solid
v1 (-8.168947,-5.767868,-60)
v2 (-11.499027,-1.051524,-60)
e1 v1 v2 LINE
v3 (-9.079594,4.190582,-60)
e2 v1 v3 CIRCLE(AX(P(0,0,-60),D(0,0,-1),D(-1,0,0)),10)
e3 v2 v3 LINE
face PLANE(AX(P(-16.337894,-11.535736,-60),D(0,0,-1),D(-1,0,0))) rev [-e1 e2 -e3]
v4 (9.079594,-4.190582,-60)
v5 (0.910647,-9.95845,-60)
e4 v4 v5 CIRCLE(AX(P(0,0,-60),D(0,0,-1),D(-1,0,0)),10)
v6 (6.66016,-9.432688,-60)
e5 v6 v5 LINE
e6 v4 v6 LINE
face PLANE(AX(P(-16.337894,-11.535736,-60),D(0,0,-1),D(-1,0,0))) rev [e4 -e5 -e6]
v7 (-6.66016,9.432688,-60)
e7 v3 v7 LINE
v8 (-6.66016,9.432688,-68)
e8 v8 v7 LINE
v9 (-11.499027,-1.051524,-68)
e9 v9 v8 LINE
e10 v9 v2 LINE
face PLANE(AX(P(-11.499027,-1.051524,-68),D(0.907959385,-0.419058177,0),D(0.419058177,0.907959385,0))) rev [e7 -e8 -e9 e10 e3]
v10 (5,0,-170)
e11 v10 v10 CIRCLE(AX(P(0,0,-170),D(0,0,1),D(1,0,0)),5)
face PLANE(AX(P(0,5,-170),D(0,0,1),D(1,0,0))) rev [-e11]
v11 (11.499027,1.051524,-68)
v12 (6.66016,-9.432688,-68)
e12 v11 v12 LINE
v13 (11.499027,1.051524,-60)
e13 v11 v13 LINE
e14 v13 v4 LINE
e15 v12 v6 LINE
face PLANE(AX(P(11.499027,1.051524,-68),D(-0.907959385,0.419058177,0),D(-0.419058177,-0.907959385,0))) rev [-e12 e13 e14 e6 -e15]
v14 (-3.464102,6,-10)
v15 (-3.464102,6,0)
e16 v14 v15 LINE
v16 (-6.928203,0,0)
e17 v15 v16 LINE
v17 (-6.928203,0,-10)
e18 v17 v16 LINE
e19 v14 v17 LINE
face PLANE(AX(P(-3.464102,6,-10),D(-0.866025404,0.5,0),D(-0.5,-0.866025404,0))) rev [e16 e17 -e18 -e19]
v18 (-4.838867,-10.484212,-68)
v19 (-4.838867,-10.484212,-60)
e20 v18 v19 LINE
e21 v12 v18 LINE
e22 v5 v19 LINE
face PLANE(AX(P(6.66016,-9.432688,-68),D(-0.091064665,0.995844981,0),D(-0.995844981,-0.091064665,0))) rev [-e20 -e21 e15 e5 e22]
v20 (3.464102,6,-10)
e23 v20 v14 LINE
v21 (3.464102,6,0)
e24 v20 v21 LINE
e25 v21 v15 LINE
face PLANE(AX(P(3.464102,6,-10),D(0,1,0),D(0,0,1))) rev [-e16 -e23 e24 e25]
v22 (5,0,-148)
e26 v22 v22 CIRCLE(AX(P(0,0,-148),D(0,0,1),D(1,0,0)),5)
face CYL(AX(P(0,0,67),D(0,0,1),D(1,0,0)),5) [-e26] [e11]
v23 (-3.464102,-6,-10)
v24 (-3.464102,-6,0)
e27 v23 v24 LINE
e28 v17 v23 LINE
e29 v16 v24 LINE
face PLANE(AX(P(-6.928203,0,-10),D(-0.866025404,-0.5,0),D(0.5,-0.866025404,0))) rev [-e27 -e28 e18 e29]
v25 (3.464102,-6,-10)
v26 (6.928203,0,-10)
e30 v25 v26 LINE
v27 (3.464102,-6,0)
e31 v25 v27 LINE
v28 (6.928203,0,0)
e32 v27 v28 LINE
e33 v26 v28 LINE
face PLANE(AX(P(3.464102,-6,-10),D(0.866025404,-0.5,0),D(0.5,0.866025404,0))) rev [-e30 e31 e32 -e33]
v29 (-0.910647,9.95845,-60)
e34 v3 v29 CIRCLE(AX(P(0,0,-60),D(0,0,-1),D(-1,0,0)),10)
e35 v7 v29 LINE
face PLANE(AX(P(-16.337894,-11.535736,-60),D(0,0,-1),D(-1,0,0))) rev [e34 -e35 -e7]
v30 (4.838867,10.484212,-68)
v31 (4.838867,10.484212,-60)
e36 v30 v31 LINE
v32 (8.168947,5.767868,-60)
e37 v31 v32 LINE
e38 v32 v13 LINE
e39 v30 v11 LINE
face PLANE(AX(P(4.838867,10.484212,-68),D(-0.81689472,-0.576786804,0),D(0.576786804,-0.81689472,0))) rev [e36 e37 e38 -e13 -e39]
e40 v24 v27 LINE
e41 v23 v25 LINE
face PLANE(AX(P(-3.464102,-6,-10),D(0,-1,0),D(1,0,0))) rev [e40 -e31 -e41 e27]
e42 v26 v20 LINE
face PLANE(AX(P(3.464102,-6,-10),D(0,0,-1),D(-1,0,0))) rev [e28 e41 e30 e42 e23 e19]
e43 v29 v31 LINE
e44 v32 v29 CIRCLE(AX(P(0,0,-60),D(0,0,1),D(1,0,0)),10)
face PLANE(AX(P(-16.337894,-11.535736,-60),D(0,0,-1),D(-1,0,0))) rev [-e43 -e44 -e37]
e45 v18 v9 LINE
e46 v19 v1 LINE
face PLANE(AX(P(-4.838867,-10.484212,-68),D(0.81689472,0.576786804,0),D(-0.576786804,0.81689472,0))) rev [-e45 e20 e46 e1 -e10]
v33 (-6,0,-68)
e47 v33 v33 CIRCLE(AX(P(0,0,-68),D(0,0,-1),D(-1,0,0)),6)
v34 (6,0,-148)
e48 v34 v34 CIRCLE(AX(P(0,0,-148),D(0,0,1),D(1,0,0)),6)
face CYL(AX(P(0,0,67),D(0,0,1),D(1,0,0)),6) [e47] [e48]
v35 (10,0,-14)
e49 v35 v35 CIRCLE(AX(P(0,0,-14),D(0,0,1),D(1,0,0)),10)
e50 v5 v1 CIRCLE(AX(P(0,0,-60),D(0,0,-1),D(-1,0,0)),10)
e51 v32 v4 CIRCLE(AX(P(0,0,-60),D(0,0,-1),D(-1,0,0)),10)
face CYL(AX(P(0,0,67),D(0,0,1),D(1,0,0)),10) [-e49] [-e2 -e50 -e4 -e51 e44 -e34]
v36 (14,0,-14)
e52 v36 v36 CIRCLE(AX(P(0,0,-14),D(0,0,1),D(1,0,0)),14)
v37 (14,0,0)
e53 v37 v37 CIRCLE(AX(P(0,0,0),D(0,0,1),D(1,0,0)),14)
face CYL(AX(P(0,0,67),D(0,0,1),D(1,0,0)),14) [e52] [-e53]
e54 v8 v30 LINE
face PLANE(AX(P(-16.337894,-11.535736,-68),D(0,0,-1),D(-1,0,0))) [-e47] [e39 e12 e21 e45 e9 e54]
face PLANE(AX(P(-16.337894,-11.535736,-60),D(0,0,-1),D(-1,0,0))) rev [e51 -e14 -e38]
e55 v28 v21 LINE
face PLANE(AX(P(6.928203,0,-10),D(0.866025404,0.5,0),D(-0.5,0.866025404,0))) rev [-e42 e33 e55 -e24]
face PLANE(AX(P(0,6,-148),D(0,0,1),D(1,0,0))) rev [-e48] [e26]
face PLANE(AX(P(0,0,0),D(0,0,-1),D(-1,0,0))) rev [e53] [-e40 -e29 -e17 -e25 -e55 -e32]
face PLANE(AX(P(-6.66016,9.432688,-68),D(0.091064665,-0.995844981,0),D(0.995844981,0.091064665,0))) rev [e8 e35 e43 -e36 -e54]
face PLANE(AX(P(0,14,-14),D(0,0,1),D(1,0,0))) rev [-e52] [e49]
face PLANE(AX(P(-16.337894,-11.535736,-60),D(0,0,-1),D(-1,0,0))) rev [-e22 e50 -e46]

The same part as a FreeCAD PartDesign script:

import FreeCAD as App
import Part
import Sketcher
Q = App.Units.Quantity

doc = App.newDocument("Part")
params = doc.addObject("Spreadsheet::Sheet", "Params")
for row, (alias, value) in enumerate([
    ("sketch1_width", "14 mm"),
    ("sketch1_width2", "5 mm"),
    ("sketch1_width3", "1 mm"),
    ("sketch1_height", "170 mm"),
    ("sketch1_height2", "22 mm"),
    ("revolution_angle", "360 deg"),
    ("pocket1_length", "10 mm"),
    ("pad1_length", "8 mm"),
], start=1):
    params.set(f"A{row}", alias)
    params.set(f"B{row}", "=" + value)
    params.setAlias(f"B{row}", alias)

body = doc.addObject("PartDesign::Body", "Body")

# Sketch on YZ plane
sketch1 = doc.addObject("Sketcher::SketchObject", "Sketch")
body.addObject(sketch1)
sketch1.AttachmentSupport = (doc.YZ_Plane, [""])
sketch1.MapMode = "FlatFace"
sketch1.addGeometry([
    Part.LineSegment(App.Vector(14, 0, 0), App.Vector(0, 0, 0)),  # 0
    Part.LineSegment(App.Vector(0, 0, 0), App.Vector(0, -170, 0)),  # 1
    Part.LineSegment(App.Vector(0, -170, 0), App.Vector(5, -170, 0)),  # 2
    Part.LineSegment(App.Vector(5, -170, 0), App.Vector(5, -148, 0)),  # 3
    Part.LineSegment(App.Vector(5, -148, 0), App.Vector(6, -148, 0)),  # 4
    Part.LineSegment(App.Vector(6, -148, 0), App.Vector(6, -60, 0)),  # 5
    Part.LineSegment(App.Vector(6, -60, 0), App.Vector(10, -60, 0)),  # 6
    Part.LineSegment(App.Vector(10, -60, 0), App.Vector(10, -14, 0)),  # 7
    Part.LineSegment(App.Vector(10, -14, 0), App.Vector(14, -14, 0)),  # 8
    Part.LineSegment(App.Vector(14, -14, 0), App.Vector(14, 0, 0)),  # 9
], False)
sketch1.addConstraint([
    Sketcher.Constraint("Coincident", 0, 2, 1, 1),
    Sketcher.Constraint("Coincident", 1, 2, 2, 1),
    Sketcher.Constraint("Coincident", 2, 2, 3, 1),
    Sketcher.Constraint("Coincident", 3, 2, 4, 1),
    Sketcher.Constraint("Coincident", 4, 2, 5, 1),
    Sketcher.Constraint("Coincident", 5, 2, 6, 1),
    Sketcher.Constraint("Coincident", 6, 2, 7, 1),
    Sketcher.Constraint("Coincident", 7, 2, 8, 1),
    Sketcher.Constraint("Coincident", 8, 2, 9, 1),
    Sketcher.Constraint("Coincident", 9, 2, 0, 1),
    Sketcher.Constraint("Horizontal", 0),
    Sketcher.Constraint("Vertical", 1),
    Sketcher.Constraint("Horizontal", 2),
    Sketcher.Constraint("Vertical", 3),
    Sketcher.Constraint("Horizontal", 4),
    Sketcher.Constraint("Vertical", 5),
    Sketcher.Constraint("Horizontal", 6),
    Sketcher.Constraint("Vertical", 7),
    Sketcher.Constraint("Horizontal", 8),
    Sketcher.Constraint("Vertical", 9),
    Sketcher.Constraint("Coincident", 0, 2, -1, 1),
    Sketcher.Constraint("Equal", 6, 8),
    Sketcher.Constraint("Equal", 0, 9),
    Sketcher.Constraint("DistanceX", 0, 2, 0, 1, 14.0),
    Sketcher.Constraint("DistanceX", 2, 1, 2, 2, 5.0),
    Sketcher.Constraint("DistanceX", 4, 1, 4, 2, 1.0),
    Sketcher.Constraint("DistanceY", 1, 2, 1, 1, 170.0),
    Sketcher.Constraint("DistanceY", 3, 1, 3, 2, 22.0),
    Sketcher.Constraint("DistanceY", 5, 1, 5, 2, 88.0),
])
sketch1.setExpression("Constraints[23]", "Params.sketch1_width")
sketch1.setExpression("Constraints[24]", "Params.sketch1_width2")
sketch1.setExpression("Constraints[25]", "Params.sketch1_width3")
sketch1.setExpression("Constraints[26]", "Params.sketch1_height")
sketch1.setExpression("Constraints[27]", "Params.sketch1_height2")
revolution = doc.addObject("PartDesign::Revolution", "Revolution")
body.addObject(revolution)
revolution.Profile = sketch1
revolution.ReferenceAxis = (sketch1, ["V_Axis"])
revolution.setExpression("Angle", "Params.revolution_angle")

# Sketch on XY plane
sketch2 = doc.addObject("Sketcher::SketchObject", "Sketch001")
body.addObject(sketch2)
sketch2.AttachmentSupport = (doc.XY_Plane, [""])
sketch2.MapMode = "FlatFace"
sketch2.addGeometry([
    Part.LineSegment(App.Vector(7, 0, 0), App.Vector(3, 6, 0)),  # 0
    Part.LineSegment(App.Vector(3, 6, 0), App.Vector(-3, 6, 0)),  # 1
    Part.LineSegment(App.Vector(-3, 6, 0), App.Vector(-7, 0, 0)),  # 2
    Part.LineSegment(App.Vector(-7, 0, 0), App.Vector(-3, -6, 0)),  # 3
    Part.LineSegment(App.Vector(-3, -6, 0), App.Vector(3, -6, 0)),  # 4
    Part.LineSegment(App.Vector(3, -6, 0), App.Vector(7, 0, 0)),  # 5
], False)
sketch2.addConstraint([
    Sketcher.Constraint("Coincident", 0, 2, 1, 1),
    Sketcher.Constraint("Coincident", 1, 2, 2, 1),
    Sketcher.Constraint("Coincident", 2, 2, 3, 1),
    Sketcher.Constraint("Coincident", 3, 2, 4, 1),
    Sketcher.Constraint("Coincident", 4, 2, 5, 1),
    Sketcher.Constraint("Coincident", 5, 2, 0, 1),
    Sketcher.Constraint("Horizontal", 1),
    Sketcher.Constraint("Horizontal", 4),
    Sketcher.Constraint("Symmetric", 0, 2, 3, 2, -1, 1),
    Sketcher.Constraint("Symmetric", 2, 2, 5, 2, -1, 1),
    Sketcher.Constraint("PointOnObject", 2, 2, -1),
    Sketcher.Constraint("Parallel", 2, 5),
    Sketcher.Constraint("Vertical", 1, 2, 3, 2),
    Sketcher.Constraint("Angle", 0, Q("120 deg")),
    Sketcher.Constraint("DistanceY", -1, 1, 0, 2, 6.0),
    Sketcher.Constraint("DistanceX", -1, 1, 0, 2, 3.464102),
])
pocket1 = doc.addObject("PartDesign::Pocket", "Pocket")
body.addObject(pocket1)
pocket1.Profile = sketch2
pocket1.setExpression("Length", "Params.pocket1_length")

# Sketch on XY plane
sketch3 = doc.addObject("Sketcher::SketchObject", "Sketch002")
body.addObject(sketch3)
sketch3.AttachmentSupport = (doc.XY_Plane, [""])
sketch3.MapMode = "FlatFace"
sketch3.AttachmentOffset = App.Placement(App.Vector(0, 0, -60), App.Rotation())
sketch3.addGeometry([
    Part.LineSegment(App.Vector(-5, -10, 0), App.Vector(-11, -1, 0)),  # 0
    Part.LineSegment(App.Vector(-11, -1, 0), App.Vector(-7, 9, 0)),  # 1
    Part.LineSegment(App.Vector(-7, 9, 0), App.Vector(5, 10, 0)),  # 2
    Part.LineSegment(App.Vector(5, 10, 0), App.Vector(11, 1, 0)),  # 3
    Part.LineSegment(App.Vector(11, 1, 0), App.Vector(7, -9, 0)),  # 4
    Part.LineSegment(App.Vector(7, -9, 0), App.Vector(-5, -10, 0)),  # 5
], False)
sketch3.addConstraint([
    Sketcher.Constraint("Coincident", 0, 2, 1, 1),
    Sketcher.Constraint("Coincident", 1, 2, 2, 1),
    Sketcher.Constraint("Coincident", 2, 2, 3, 1),
    Sketcher.Constraint("Coincident", 3, 2, 4, 1),
    Sketcher.Constraint("Coincident", 4, 2, 5, 1),
    Sketcher.Constraint("Coincident", 5, 2, 0, 1),
    Sketcher.Constraint("Symmetric", 0, 2, 3, 2, -1, 1),
    Sketcher.Constraint("Symmetric", 1, 2, 4, 2, -1, 1),
    Sketcher.Constraint("Symmetric", 2, 2, 5, 2, -1, 1),
    Sketcher.Constraint("Equal", 0, 1),
    Sketcher.Constraint("Equal", 1, 2),
    Sketcher.Constraint("DistanceY", 4, 2, 2, 2, 19.9169),
    Sketcher.Constraint("DistanceX", 1, 2, -1, 1, 6.66016),
    Sketcher.Constraint("DistanceY", -1, 1, 2, 2, 10.484212),
    Sketcher.Constraint("DistanceY", 0, 2, 1, 2, 10.484212),
])
pad1 = doc.addObject("PartDesign::Pad", "Pad")
body.addObject(pad1)
pad1.Profile = sketch3
pad1.setExpression("Length", "Params.pad1_length")
pad1.Reversed = True

doc.recompute()
